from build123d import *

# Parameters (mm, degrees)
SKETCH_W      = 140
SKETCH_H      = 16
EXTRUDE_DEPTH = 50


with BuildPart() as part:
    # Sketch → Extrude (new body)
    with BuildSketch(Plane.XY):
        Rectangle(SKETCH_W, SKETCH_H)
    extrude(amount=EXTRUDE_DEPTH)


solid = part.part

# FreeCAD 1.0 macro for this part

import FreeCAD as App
import Part
import Sketcher
from FreeCAD import Vector
Q = App.Units.Quantity


def add_polygon(sketch, points):
    """Adds a closed chain of lines whose ends are joined by coincident constraints."""
    first, n = sketch.GeometryCount, len(points)
    for a, b in zip(points, points[1:] + points[:1]):
        sketch.addGeometry(Part.LineSegment(App.Vector(*a, 0), App.Vector(*b, 0)), False)
    for i in range(n):
        sketch.addConstraint(Sketcher.Constraint("Coincident", first + i, 2, first + (i + 1) % n, 1))

doc = App.newDocument("Part")
body = doc.addObject("PartDesign::Body", "Body")

# Sketch on XY plane
sketch1 = doc.addObject("Sketcher::SketchObject", "Sketch")
body.addObject(sketch1)
sketch1.AttachmentSupport = (doc.XY_Plane, [""])
sketch1.MapMode = "FlatFace"
add_polygon(sketch1, [(-70, 8), (-70, -8), (70, -8), (70, 8)])  # lines 0-3
sketch1.addConstraint(Sketcher.Constraint("Vertical", 0))
sketch1.addConstraint(Sketcher.Constraint("Horizontal", 1))
sketch1.addConstraint(Sketcher.Constraint("Vertical", 2))
sketch1.addConstraint(Sketcher.Constraint("Horizontal", 3))
sketch1.addConstraint(Sketcher.Constraint("Symmetric", 0, 2, 2, 2, -1, 1))
sketch1.addConstraint(Sketcher.Constraint("DistanceX", 1, 1, 1, 2, Q("140 mm")))
sketch1.addConstraint(Sketcher.Constraint("DistanceY", 0, 2, 0, 1, Q("16 mm")))
pad1 = doc.addObject("PartDesign::Pad", "Pad")
body.addObject(pad1)
pad1.Profile = sketch1
pad1.Length = 50

doc.recompute()
